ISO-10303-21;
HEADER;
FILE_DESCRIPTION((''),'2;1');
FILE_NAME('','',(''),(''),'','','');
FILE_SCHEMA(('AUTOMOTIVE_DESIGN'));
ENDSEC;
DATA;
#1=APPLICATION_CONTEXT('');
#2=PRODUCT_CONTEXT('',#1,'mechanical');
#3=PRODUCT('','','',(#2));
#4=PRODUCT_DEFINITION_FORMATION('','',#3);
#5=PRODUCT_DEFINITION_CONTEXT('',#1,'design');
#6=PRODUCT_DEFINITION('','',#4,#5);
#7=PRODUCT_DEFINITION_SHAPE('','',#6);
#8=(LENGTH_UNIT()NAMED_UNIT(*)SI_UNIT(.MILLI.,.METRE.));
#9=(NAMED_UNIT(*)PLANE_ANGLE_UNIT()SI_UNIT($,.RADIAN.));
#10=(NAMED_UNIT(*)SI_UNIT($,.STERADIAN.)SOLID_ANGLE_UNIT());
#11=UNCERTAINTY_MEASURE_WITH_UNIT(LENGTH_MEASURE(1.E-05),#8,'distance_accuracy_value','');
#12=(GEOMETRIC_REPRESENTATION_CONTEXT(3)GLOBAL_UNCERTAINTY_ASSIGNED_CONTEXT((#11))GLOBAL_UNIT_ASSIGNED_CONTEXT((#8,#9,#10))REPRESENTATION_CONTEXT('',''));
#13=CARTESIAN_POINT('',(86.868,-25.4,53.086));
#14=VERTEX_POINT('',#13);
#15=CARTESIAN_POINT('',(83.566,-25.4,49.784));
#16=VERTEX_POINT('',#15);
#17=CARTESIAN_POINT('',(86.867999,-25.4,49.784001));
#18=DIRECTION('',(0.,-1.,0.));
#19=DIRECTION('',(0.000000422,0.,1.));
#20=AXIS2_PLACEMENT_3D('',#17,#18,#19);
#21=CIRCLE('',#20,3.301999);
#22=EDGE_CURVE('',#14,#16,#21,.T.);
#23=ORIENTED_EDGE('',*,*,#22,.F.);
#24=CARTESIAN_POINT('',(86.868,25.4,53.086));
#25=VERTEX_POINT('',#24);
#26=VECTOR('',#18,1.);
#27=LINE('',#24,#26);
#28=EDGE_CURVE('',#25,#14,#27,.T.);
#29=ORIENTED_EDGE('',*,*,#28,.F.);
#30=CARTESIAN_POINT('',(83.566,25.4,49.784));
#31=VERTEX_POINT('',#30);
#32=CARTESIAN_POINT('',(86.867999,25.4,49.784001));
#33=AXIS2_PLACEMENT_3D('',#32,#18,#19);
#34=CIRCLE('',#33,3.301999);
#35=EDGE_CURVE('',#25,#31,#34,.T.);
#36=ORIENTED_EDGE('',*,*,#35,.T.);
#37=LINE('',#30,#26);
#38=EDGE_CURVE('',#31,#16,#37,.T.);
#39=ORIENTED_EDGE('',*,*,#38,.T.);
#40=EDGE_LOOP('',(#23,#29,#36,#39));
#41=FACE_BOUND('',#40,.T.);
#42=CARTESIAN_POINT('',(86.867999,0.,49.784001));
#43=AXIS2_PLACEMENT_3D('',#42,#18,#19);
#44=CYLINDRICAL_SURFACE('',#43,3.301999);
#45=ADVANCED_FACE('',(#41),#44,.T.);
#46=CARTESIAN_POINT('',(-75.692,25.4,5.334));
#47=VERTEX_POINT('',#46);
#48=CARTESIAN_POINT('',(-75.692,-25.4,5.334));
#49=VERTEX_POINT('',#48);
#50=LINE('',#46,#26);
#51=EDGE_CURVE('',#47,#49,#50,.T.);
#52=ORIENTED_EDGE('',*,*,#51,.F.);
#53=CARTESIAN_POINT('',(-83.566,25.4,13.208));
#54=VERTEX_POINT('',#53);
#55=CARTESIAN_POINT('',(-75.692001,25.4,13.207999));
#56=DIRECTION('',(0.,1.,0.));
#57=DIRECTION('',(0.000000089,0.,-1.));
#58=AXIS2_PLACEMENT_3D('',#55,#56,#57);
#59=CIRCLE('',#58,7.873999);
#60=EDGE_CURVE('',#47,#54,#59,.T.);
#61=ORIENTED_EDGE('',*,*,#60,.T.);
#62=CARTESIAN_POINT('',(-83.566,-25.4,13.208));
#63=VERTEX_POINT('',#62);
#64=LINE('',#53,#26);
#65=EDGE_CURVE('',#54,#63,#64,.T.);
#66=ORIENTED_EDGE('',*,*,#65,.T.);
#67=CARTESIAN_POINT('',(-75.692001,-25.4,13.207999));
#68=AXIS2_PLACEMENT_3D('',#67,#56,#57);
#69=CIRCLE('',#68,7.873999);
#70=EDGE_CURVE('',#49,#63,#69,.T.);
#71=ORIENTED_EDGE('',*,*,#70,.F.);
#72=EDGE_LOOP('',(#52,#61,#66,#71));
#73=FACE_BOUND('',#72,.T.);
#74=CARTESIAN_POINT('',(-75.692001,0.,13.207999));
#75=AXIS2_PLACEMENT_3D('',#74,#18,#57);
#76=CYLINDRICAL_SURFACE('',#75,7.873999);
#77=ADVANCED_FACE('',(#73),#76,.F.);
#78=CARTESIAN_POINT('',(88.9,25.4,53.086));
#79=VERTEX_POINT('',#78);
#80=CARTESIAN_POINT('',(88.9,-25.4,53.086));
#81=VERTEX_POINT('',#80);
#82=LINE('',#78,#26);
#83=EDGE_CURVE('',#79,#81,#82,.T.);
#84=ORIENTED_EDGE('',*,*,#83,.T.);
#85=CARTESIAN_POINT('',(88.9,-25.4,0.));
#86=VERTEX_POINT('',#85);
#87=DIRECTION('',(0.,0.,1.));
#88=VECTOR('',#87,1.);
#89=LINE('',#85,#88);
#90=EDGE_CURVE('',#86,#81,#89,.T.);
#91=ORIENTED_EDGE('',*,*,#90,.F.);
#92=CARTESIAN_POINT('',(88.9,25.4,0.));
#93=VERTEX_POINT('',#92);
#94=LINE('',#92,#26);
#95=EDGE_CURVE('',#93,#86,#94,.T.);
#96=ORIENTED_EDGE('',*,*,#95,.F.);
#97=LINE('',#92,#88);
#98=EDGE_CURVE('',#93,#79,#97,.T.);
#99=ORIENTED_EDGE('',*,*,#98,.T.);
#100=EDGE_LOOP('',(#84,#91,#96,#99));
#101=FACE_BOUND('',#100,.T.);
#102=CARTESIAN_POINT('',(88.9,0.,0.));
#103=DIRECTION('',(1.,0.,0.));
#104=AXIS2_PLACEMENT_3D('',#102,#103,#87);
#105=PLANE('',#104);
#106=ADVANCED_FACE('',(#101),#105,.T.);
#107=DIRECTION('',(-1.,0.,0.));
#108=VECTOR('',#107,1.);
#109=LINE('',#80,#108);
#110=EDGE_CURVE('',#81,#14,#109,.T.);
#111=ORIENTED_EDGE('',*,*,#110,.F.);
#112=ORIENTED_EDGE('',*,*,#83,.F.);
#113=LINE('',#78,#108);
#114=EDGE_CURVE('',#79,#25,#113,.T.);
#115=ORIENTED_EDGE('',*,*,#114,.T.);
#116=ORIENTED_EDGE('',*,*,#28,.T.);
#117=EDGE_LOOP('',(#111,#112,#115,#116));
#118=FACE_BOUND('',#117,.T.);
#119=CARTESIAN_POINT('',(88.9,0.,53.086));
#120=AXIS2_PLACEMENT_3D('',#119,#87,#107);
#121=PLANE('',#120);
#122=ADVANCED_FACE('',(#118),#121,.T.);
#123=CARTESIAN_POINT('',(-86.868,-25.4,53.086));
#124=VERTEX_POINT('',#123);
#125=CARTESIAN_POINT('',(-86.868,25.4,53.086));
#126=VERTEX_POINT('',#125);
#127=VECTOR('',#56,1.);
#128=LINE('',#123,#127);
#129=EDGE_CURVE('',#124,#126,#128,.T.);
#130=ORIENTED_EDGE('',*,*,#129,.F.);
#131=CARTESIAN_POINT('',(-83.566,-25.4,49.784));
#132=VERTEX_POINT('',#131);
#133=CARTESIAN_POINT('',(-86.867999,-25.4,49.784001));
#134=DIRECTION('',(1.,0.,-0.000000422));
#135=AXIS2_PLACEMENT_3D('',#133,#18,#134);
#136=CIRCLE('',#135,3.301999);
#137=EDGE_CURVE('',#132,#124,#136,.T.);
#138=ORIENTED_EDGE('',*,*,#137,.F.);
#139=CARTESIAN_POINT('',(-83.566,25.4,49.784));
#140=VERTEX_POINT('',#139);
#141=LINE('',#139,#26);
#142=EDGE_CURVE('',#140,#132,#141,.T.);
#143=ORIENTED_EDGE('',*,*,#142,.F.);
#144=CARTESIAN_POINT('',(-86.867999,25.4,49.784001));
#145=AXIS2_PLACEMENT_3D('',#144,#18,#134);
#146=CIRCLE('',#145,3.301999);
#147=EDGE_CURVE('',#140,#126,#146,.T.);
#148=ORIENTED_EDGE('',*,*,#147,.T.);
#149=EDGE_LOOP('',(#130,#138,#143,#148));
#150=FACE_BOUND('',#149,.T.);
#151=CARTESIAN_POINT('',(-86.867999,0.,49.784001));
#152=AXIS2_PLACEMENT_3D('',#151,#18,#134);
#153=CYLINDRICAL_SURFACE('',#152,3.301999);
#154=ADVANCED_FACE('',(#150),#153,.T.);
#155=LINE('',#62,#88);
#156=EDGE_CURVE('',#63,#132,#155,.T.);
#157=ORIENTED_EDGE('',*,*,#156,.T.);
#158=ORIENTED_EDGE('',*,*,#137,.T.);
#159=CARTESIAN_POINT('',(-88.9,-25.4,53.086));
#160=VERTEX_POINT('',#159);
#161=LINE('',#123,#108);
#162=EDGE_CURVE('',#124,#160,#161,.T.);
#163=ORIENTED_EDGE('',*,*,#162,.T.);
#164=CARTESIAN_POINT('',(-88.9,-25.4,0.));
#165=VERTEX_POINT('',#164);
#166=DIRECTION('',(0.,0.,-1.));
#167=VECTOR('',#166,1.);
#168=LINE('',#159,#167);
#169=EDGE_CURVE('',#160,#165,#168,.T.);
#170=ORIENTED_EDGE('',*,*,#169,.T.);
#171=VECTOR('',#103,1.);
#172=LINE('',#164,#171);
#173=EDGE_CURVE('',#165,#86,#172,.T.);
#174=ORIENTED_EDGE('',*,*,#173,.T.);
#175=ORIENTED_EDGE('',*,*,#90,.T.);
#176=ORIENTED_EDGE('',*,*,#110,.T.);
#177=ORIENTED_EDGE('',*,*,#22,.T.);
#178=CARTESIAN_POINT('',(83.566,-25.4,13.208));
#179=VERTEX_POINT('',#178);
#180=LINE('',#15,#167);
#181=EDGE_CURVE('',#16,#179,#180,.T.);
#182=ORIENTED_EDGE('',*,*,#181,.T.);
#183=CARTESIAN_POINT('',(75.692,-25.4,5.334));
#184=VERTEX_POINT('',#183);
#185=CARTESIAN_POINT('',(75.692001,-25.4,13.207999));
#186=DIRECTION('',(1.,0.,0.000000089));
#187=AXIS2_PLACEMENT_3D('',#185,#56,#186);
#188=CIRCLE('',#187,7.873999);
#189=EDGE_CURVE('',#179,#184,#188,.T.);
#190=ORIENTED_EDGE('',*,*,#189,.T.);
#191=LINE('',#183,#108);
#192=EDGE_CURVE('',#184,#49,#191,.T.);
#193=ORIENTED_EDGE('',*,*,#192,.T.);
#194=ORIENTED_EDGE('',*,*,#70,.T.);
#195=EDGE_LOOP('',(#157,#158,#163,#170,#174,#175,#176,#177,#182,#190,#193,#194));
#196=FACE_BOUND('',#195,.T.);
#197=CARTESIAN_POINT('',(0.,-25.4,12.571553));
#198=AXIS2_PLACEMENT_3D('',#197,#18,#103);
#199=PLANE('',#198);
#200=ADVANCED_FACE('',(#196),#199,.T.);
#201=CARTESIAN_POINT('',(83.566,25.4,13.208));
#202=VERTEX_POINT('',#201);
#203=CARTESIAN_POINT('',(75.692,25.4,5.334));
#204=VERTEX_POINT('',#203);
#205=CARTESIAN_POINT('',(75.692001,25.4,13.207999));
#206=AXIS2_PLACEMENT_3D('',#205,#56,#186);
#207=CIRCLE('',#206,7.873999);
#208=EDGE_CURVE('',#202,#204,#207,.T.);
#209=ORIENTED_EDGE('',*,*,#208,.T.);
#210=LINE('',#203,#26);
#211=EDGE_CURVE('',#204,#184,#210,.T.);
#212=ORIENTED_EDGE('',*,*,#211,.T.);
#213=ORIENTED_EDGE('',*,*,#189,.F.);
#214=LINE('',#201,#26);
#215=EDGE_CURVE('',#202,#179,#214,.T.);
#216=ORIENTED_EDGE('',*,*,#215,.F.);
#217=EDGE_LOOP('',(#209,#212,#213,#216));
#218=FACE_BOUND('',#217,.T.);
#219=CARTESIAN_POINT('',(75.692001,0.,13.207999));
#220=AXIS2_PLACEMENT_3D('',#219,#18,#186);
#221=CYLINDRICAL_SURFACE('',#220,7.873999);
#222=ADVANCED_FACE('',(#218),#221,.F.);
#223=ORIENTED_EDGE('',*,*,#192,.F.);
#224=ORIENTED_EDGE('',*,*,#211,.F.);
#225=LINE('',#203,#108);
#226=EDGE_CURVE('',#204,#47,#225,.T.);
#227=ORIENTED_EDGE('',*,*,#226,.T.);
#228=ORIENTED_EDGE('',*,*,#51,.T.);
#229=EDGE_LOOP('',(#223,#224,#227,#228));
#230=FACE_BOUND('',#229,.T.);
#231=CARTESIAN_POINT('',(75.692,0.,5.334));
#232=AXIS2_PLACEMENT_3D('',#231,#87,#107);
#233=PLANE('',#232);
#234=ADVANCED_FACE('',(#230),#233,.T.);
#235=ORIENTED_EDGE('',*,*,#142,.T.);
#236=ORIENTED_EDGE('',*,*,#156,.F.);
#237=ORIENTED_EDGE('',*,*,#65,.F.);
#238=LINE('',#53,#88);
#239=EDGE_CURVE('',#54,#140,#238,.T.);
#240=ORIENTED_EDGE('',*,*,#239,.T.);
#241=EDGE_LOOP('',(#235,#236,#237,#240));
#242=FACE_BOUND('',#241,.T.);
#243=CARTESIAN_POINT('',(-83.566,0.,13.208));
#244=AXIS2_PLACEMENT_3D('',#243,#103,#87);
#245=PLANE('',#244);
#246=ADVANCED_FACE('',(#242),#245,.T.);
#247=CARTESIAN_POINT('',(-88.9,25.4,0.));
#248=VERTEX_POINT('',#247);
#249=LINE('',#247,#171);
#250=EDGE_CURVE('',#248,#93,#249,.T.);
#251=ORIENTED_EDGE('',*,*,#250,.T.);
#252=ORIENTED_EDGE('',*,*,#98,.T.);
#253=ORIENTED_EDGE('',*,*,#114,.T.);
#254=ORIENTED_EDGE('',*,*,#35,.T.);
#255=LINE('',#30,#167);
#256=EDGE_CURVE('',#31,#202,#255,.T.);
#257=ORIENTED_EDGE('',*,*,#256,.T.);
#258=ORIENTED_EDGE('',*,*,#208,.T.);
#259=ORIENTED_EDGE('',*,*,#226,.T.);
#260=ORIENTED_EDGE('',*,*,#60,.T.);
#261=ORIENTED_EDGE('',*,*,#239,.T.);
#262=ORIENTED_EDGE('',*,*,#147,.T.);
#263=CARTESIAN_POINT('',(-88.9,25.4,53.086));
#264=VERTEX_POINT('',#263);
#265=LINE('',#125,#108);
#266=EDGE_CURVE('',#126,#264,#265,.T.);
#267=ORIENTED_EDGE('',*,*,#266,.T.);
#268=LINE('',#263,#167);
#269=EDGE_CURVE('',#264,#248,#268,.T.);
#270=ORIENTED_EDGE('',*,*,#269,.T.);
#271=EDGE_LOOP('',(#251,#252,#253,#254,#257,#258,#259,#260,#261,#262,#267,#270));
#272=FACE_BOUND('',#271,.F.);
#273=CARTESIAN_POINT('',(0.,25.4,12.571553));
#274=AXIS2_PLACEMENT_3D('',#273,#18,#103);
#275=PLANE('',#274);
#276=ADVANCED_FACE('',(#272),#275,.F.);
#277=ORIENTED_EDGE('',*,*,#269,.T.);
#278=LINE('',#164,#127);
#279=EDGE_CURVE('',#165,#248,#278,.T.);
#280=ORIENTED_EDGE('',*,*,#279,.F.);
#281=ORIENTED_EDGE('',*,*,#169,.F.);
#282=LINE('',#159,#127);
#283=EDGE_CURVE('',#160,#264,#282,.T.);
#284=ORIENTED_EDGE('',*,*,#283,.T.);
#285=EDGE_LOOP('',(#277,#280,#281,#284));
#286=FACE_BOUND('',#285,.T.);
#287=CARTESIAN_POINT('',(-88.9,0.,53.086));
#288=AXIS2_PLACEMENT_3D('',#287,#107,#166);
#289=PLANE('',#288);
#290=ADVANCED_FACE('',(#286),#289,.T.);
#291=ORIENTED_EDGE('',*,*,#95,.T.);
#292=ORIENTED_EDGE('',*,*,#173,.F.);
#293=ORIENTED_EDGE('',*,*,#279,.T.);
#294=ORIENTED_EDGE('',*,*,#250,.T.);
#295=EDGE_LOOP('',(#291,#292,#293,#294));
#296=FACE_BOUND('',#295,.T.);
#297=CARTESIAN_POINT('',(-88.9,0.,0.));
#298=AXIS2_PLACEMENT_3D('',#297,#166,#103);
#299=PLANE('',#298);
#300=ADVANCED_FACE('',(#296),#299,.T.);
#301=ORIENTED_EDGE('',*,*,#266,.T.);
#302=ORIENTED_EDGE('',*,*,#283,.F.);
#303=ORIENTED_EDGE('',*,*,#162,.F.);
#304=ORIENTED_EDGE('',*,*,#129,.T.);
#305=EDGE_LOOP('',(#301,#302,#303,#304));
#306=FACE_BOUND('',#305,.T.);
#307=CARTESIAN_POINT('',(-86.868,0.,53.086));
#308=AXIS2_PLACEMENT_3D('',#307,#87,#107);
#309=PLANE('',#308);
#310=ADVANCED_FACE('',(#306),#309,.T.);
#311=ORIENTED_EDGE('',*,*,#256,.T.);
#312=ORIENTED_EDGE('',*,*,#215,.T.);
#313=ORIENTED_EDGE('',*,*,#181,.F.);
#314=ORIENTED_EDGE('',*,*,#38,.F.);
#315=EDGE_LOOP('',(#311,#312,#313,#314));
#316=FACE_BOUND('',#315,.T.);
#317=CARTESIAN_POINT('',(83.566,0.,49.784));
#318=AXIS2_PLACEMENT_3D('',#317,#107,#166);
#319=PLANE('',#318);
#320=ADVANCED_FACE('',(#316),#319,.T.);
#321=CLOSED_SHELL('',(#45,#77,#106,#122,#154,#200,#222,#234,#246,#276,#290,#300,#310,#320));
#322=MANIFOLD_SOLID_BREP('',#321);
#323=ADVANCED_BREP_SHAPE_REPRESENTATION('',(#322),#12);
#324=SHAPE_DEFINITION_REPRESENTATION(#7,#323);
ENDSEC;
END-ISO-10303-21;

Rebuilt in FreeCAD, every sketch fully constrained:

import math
import FreeCAD as App
import Part
import Sketcher
Q = App.Units.Quantity

doc = App.newDocument("Part")
params = doc.addObject("Spreadsheet::Sheet", "Params")
for row, (alias, value) in enumerate([
    ("sketch1_width", "7 in"),
    ("sketch1_radius", "0.1299999 in"),
    ("sketch1_radius2", "0.31 in"),
    ("sketch1_width2", "0.08 in"),
    ("sketch1_height", "2.09 in"),
    ("pad1_length", "2 in"),
], start=1):
    params.set(f"A{row}", alias)
    params.set(f"B{row}", "=" + value)
    params.setAlias(f"B{row}", alias)

body = doc.addObject("PartDesign::Body", "Body")

sketch1 = body.newObject("Sketcher::SketchObject", "Sketch")
sketch1.AttachmentSupport = (doc.getObject("XZ_Plane"), [""])
sketch1.MapMode = "FlatFace"
sketch1.addGeometry([
    Part.LineSegment(App.Vector(-88.9, 0, 0), App.Vector(88.9, 0, 0)),
    Part.LineSegment(App.Vector(88.9, 0, 0), App.Vector(88.9, 53.086, 0)),
    Part.LineSegment(App.Vector(88.9, 53.086, 0), App.Vector(86.868, 53.086, 0)),
    Part.ArcOfCircle(Part.Circle(App.Vector(86.867999, 49.784001, 0), App.Vector(0, 0, 1), 3.301999), math.radians(89.999976), math.radians(180.000024)),
    Part.LineSegment(App.Vector(83.566, 49.784, 0), App.Vector(83.566, 13.208, 0)),
    Part.ArcOfCircle(Part.Circle(App.Vector(75.692001, 13.207999, 0), App.Vector(0, 0, 1), 7.873999), math.radians(-90.000005), math.radians(0.000005)),
    Part.LineSegment(App.Vector(75.692, 5.334, 0), App.Vector(-75.692, 5.334, 0)),
    Part.ArcOfCircle(Part.Circle(App.Vector(-75.692001, 13.207999, 0), App.Vector(0, 0, 1), 7.873999), math.radians(179.999995), math.radians(270.000005)),
    Part.LineSegment(App.Vector(-83.566, 13.208, 0), App.Vector(-83.566, 49.784, 0)),
    Part.ArcOfCircle(Part.Circle(App.Vector(-86.867999, 49.784001, 0), App.Vector(0, 0, 1), 3.301999), math.radians(-0.000024), math.radians(90.000024)),
    Part.LineSegment(App.Vector(-86.868, 53.086, 0), App.Vector(-88.9, 53.086, 0)),
    Part.LineSegment(App.Vector(-88.9, 53.086, 0), App.Vector(-88.9, 0, 0)),
], False)
sketch1.addConstraint([
    Sketcher.Constraint("Coincident", 0, 2, 1, 1),
    Sketcher.Constraint("Coincident", 1, 2, 2, 1),
    Sketcher.Constraint("Tangent", 2, 2, 3, 1),
    Sketcher.Constraint("Tangent", 3, 2, 4, 1),
    Sketcher.Constraint("Tangent", 4, 2, 5, 2),
    Sketcher.Constraint("Tangent", 5, 1, 6, 1),
    Sketcher.Constraint("Tangent", 6, 2, 7, 2),
    Sketcher.Constraint("Tangent", 7, 1, 8, 1),
    Sketcher.Constraint("Tangent", 8, 2, 9, 1),
    Sketcher.Constraint("Tangent", 9, 2, 10, 1),
    Sketcher.Constraint("Coincident", 10, 2, 11, 1),
    Sketcher.Constraint("Coincident", 11, 2, 0, 1),
    Sketcher.Constraint("Horizontal", 0),
    Sketcher.Constraint("Vertical", 1),
    Sketcher.Constraint("Horizontal", 2),
    Sketcher.Constraint("Vertical", 4),
    Sketcher.Constraint("Horizontal", 6),
    Sketcher.Constraint("Vertical", 8),
    Sketcher.Constraint("Horizontal", 10),
    Sketcher.Constraint("Vertical", 11),
    Sketcher.Constraint("Equal", 5, 7),
    Sketcher.Constraint("Equal", 3, 9),
    Sketcher.Constraint("Symmetric", 0, 2, 11, 2, -1, 1),
    Sketcher.Constraint("Symmetric", 3, 3, 9, 3, -2),
    Sketcher.Constraint("DistanceX", 0, 1, 0, 2, Q("7 in")),
    Sketcher.Constraint("Radius", 3, Q("0.1299999 in")),
    Sketcher.Constraint("Radius", 5, Q("0.31 in")),
    Sketcher.Constraint("DistanceX", 2, 2, 2, 1, Q("0.08 in")),
    Sketcher.Constraint("DistanceY", 1, 1, 1, 2, Q("2.09 in")),
    Sketcher.Constraint("DistanceY", 4, 2, 4, 1, Q("1.44 in")),
])
sketch1.setExpression("Constraints[24]", "Params.sketch1_width")
sketch1.setExpression("Constraints[25]", "Params.sketch1_radius")
sketch1.setExpression("Constraints[26]", "Params.sketch1_radius2")
sketch1.setExpression("Constraints[27]", "Params.sketch1_width2")
sketch1.setExpression("Constraints[28]", "Params.sketch1_height")
pad1 = body.newObject("PartDesign::Pad", "Pad")
pad1.Profile = sketch1
pad1.setExpression("Length", "Params.pad1_length")
pad1.Midplane = True

doc.recompute()
